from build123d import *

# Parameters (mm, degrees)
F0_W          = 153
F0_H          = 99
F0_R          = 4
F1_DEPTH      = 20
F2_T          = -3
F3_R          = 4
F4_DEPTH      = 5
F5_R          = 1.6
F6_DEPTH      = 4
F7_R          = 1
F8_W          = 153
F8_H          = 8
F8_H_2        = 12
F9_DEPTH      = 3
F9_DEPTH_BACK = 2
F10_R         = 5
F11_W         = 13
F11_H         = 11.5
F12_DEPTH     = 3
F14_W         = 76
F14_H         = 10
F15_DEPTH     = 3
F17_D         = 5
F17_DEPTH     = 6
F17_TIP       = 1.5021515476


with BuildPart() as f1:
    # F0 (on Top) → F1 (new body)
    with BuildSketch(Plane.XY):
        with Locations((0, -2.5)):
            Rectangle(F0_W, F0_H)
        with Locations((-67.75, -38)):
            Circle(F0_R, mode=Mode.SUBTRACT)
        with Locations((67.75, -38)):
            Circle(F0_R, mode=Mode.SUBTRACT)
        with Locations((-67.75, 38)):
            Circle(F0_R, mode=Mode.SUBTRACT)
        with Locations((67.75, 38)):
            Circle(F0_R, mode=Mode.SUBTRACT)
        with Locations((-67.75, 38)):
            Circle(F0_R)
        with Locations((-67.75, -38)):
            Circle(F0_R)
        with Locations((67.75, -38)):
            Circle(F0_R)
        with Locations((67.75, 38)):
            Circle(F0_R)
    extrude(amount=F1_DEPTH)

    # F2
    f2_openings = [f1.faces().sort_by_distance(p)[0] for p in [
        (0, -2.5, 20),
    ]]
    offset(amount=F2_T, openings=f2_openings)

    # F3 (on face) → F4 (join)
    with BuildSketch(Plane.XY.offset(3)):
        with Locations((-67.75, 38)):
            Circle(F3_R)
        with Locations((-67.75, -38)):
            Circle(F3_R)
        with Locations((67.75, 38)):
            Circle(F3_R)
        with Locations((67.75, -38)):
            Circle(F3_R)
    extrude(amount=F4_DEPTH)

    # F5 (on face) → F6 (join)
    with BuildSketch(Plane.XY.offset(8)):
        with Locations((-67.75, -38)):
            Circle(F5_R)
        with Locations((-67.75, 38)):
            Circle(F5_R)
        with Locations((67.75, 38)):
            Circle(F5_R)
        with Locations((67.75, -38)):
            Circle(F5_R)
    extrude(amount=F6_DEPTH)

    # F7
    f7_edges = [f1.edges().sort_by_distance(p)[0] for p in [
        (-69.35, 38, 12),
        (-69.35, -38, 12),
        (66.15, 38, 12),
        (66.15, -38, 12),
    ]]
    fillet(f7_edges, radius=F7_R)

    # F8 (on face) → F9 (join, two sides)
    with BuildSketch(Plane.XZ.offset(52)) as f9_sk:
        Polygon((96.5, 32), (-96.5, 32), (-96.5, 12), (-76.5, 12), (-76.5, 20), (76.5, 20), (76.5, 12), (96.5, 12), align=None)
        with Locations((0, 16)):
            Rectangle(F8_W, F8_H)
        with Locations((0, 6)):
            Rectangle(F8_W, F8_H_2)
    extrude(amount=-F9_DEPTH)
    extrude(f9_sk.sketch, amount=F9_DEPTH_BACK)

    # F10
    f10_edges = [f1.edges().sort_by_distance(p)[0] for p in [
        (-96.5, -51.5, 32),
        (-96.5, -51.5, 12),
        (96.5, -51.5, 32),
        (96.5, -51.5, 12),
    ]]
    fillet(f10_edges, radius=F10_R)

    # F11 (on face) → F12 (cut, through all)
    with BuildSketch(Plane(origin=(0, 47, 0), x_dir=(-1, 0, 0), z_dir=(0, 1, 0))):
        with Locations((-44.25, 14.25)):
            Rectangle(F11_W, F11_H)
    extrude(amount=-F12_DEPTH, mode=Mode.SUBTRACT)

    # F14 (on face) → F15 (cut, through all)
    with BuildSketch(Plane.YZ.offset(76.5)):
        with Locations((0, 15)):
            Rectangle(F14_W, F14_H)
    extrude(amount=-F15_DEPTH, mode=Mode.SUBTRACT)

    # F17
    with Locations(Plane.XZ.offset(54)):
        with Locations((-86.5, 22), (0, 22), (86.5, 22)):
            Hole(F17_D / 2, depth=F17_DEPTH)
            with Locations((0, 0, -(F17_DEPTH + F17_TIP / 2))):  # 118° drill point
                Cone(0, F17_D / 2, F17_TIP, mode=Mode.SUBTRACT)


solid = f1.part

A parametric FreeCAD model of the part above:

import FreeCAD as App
import Part
import Sketcher


def edges_at(feature, points):
    """Names of the edges that pass closest to the given points."""
    edges = feature.Shape.Edges
    near = lambda p: min(range(len(edges)), key=lambda i: edges[i].distToShape(Part.Vertex(*p))[0])
    return sorted({f"Edge{near(p) + 1}" for p in points})


def faces_at(feature, points):
    """Names of the faces that lie closest to the given points."""
    faces = feature.Shape.Faces
    near = lambda p: min(range(len(faces)), key=lambda i: faces[i].distToShape(Part.Vertex(*p))[0])
    return sorted({f"Face{near(p) + 1}" for p in points})

doc = App.newDocument("Part")
body = doc.addObject("PartDesign::Body", "Body")

# Sketch on XY plane
sketch1 = body.newObject("Sketcher::SketchObject", "Sketch")
sketch1.AttachmentSupport = (doc.getObject("XY_Plane"), [""])
sketch1.MapMode = "FlatFace"
sketch1.addGeometry(Part.LineSegment(App.Vector(-76, 47, 0), App.Vector(-76, -52, 0)), False)
sketch1.addGeometry(Part.LineSegment(App.Vector(-76, -52, 0), App.Vector(76, -52, 0)), False)
sketch1.addGeometry(Part.LineSegment(App.Vector(76, -52, 0), App.Vector(76, 47, 0)), False)
sketch1.addGeometry(Part.LineSegment(App.Vector(76, 47, 0), App.Vector(-76, 47, 0)), False)
sketch1.addConstraint(Sketcher.Constraint("Coincident", 0, 2, 1, 1))
sketch1.addConstraint(Sketcher.Constraint("Coincident", 1, 2, 2, 1))
sketch1.addConstraint(Sketcher.Constraint("Coincident", 2, 2, 3, 1))
sketch1.addConstraint(Sketcher.Constraint("Coincident", 3, 2, 0, 1))
sketch1.addConstraint(Sketcher.Constraint("Vertical", 0))
sketch1.addConstraint(Sketcher.Constraint("Horizontal", 1))
sketch1.addConstraint(Sketcher.Constraint("Vertical", 2))
sketch1.addConstraint(Sketcher.Constraint("Horizontal", 3))
sketch1.addConstraint(Sketcher.Constraint("DistanceX", 1, 1, 1, 2, 153.0))
sketch1.addConstraint(Sketcher.Constraint("DistanceY", 0, 2, 0, 1, 99.0))
sketch1.addConstraint(Sketcher.Constraint("DistanceY", 0, 2, -1, 1, 52.0))
sketch1.addConstraint(Sketcher.Constraint("DistanceX", 0, 2, -1, 1, 76.5))
pad1 = body.newObject("PartDesign::Pad", "Pad")
pad1.Profile = sketch1
pad1.Length = 20
doc.recompute()

thickness = body.newObject("PartDesign::Thickness", "Thickness")
thickness.Base = (pad1, faces_at(pad1, [(0, -2.5, 20)]))
thickness.Value = 3
thickness.Reversed = True
thickness.Join = "Arc"

# Sketch on XY plane
sketch2 = body.newObject("Sketcher::SketchObject", "Sketch001")
sketch2.AttachmentSupport = (doc.getObject("XY_Plane"), [""])
sketch2.MapMode = "FlatFace"
sketch2.AttachmentOffset = App.Placement(App.Vector(0, 0, 3), App.Rotation())
sketch2.addGeometry(Part.Circle(App.Vector(-67.8, 38, 0), App.Vector(0, 0, 1), 4), False)
sketch2.addGeometry(Part.Circle(App.Vector(-67.8, -38, 0), App.Vector(0, 0, 1), 4), False)
sketch2.addGeometry(Part.Circle(App.Vector(67.8, 38, 0), App.Vector(0, 0, 1), 4), False)
sketch2.addGeometry(Part.Circle(App.Vector(67.8, -38, 0), App.Vector(0, 0, 1), 4), False)
sketch2.addConstraint(Sketcher.Constraint("Equal", 0, 1))
sketch2.addConstraint(Sketcher.Constraint("Equal", 1, 2))
sketch2.addConstraint(Sketcher.Constraint("Equal", 2, 3))
sketch2.addConstraint(Sketcher.Constraint("Symmetric", 1, 3, 2, 3, -1, 1))
sketch2.addConstraint(Sketcher.Constraint("Symmetric", 0, 3, 3, 3, -1, 1))
sketch2.addConstraint(Sketcher.Constraint("Symmetric", 0, 3, 2, 3, -2))
sketch2.addConstraint(Sketcher.Constraint("Diameter", 0, 8.0))
sketch2.addConstraint(Sketcher.Constraint("DistanceY", -1, 1, 0, 3, 38.0))
sketch2.addConstraint(Sketcher.Constraint("DistanceX", 0, 3, 2, 3, 135.5))
pad2 = body.newObject("PartDesign::Pad", "Pad001")
pad2.Profile = sketch2
pad2.Length = 5

# Sketch on XY plane
sketch3 = body.newObject("Sketcher::SketchObject", "Sketch002")
sketch3.AttachmentSupport = (doc.getObject("XY_Plane"), [""])
sketch3.MapMode = "FlatFace"
sketch3.AttachmentOffset = App.Placement(App.Vector(0, 0, 8), App.Rotation())
sketch3.addGeometry(Part.Circle(App.Vector(-67.8, -38, 0), App.Vector(0, 0, 1), 1.6), False)
sketch3.addGeometry(Part.Circle(App.Vector(-67.8, 38, 0), App.Vector(0, 0, 1), 1.6), False)
sketch3.addGeometry(Part.Circle(App.Vector(67.8, 38, 0), App.Vector(0, 0, 1), 1.6), False)
sketch3.addGeometry(Part.Circle(App.Vector(67.8, -38, 0), App.Vector(0, 0, 1), 1.6), False)
sketch3.addConstraint(Sketcher.Constraint("Equal", 0, 1))
sketch3.addConstraint(Sketcher.Constraint("Equal", 1, 2))
sketch3.addConstraint(Sketcher.Constraint("Equal", 2, 3))
sketch3.addConstraint(Sketcher.Constraint("Symmetric", 0, 3, 2, 3, -1, 1))
sketch3.addConstraint(Sketcher.Constraint("Symmetric", 1, 3, 3, 3, -1, 1))
sketch3.addConstraint(Sketcher.Constraint("Symmetric", 1, 3, 2, 3, -2))
sketch3.addConstraint(Sketcher.Constraint("Diameter", 0, 3.2))
sketch3.addConstraint(Sketcher.Constraint("DistanceY", 0, 3, -1, 1, 38.0))
sketch3.addConstraint(Sketcher.Constraint("DistanceX", 1, 3, 2, 3, 135.5))
pad3 = body.newObject("PartDesign::Pad", "Pad002")
pad3.Profile = sketch3
pad3.Length = 4
doc.recompute()

fillet = body.newObject("PartDesign::Fillet", "Fillet")
fillet.Base = (pad3, edges_at(pad3, [
    (-69.35, 38, 12),
    (-69.35, -38, 12),
    (66.15, 38, 12),
    (66.15, -38, 12),
]))
fillet.Radius = 1

# Sketch on XZ plane
sketch4 = body.newObject("Sketcher::SketchObject", "Sketch003")
sketch4.AttachmentSupport = (doc.getObject("XZ_Plane"), [""])
sketch4.MapMode = "FlatFace"
sketch4.AttachmentOffset = App.Placement(App.Vector(0, 0, 52), App.Rotation())
sketch4.addGeometry(Part.LineSegment(App.Vector(96, 32, 0), App.Vector(-96, 32, 0)), False)
sketch4.addGeometry(Part.LineSegment(App.Vector(-96, 32, 0), App.Vector(-96, 12, 0)), False)
sketch4.addGeometry(Part.LineSegment(App.Vector(-96, 12, 0), App.Vector(-76, 12, 0)), False)
sketch4.addGeometry(Part.LineSegment(App.Vector(-76, 12, 0), App.Vector(-76, 0, 0)), False)
sketch4.addGeometry(Part.LineSegment(App.Vector(-76, 0, 0), App.Vector(76, 0, 0)), False)
sketch4.addGeometry(Part.LineSegment(App.Vector(76, 0, 0), App.Vector(76, 12, 0)), False)
sketch4.addGeometry(Part.LineSegment(App.Vector(76, 12, 0), App.Vector(96, 12, 0)), False)
sketch4.addGeometry(Part.LineSegment(App.Vector(96, 12, 0), App.Vector(96, 32, 0)), False)
sketch4.addConstraint(Sketcher.Constraint("Coincident", 0, 2, 1, 1))
sketch4.addConstraint(Sketcher.Constraint("Coincident", 1, 2, 2, 1))
sketch4.addConstraint(Sketcher.Constraint("Coincident", 2, 2, 3, 1))
sketch4.addConstraint(Sketcher.Constraint("Coincident", 3, 2, 4, 1))
sketch4.addConstraint(Sketcher.Constraint("Coincident", 4, 2, 5, 1))
sketch4.addConstraint(Sketcher.Constraint("Coincident", 5, 2, 6, 1))
sketch4.addConstraint(Sketcher.Constraint("Coincident", 6, 2, 7, 1))
sketch4.addConstraint(Sketcher.Constraint("Coincident", 7, 2, 0, 1))
sketch4.addConstraint(Sketcher.Constraint("Horizontal", 0))
sketch4.addConstraint(Sketcher.Constraint("Vertical", 1))
sketch4.addConstraint(Sketcher.Constraint("Horizontal", 2))
sketch4.addConstraint(Sketcher.Constraint("Vertical", 3))
sketch4.addConstraint(Sketcher.Constraint("Horizontal", 4))
sketch4.addConstraint(Sketcher.Constraint("Vertical", 5))
sketch4.addConstraint(Sketcher.Constraint("Horizontal", 6))
sketch4.addConstraint(Sketcher.Constraint("Vertical", 7))
sketch4.addConstraint(Sketcher.Constraint("Symmetric", 3, 2, 4, 2, -1, 1))
sketch4.addConstraint(Sketcher.Constraint("Symmetric", 1, 2, 6, 2, -2))
sketch4.addConstraint(Sketcher.Constraint("Equal", 6, 1))
sketch4.addConstraint(Sketcher.Constraint("DistanceX", 0, 2, 0, 1, 193.0))
sketch4.addConstraint(Sketcher.Constraint("DistanceX", 2, 1, 2, 2, 20.0))
sketch4.addConstraint(Sketcher.Constraint("DistanceY", 3, 2, 3, 1, 12.0))
pad4 = body.newObject("PartDesign::Pad", "Pad003")
pad4.Profile = sketch4
pad4.Type = "TwoLengths"
pad4.Length = 3
pad4.Length2 = 2
pad4.Reversed = True
doc.recompute()

fillet2 = body.newObject("PartDesign::Fillet", "Fillet001")
fillet2.Base = (pad4, edges_at(pad4, [
    (-96.5, -51.5, 32),
    (-96.5, -51.5, 12),
    (96.5, -51.5, 32),
    (96.5, -51.5, 12),
]))
fillet2.Radius = 5

# Sketch on XZ plane
sketch5 = body.newObject("Sketcher::SketchObject", "Sketch004")
sketch5.AttachmentSupport = (doc.getObject("XZ_Plane"), [""])
sketch5.MapMode = "FlatFace"
sketch5.AttachmentOffset = App.Placement(App.Vector(0, 0, -47), App.Rotation())
sketch5.addGeometry(Part.LineSegment(App.Vector(51, 20, 0), App.Vector(51, 8, 0)), False)
sketch5.addGeometry(Part.LineSegment(App.Vector(51, 8, 0), App.Vector(38, 8, 0)), False)
sketch5.addGeometry(Part.LineSegment(App.Vector(38, 8, 0), App.Vector(38, 20, 0)), False)
sketch5.addGeometry(Part.LineSegment(App.Vector(38, 20, 0), App.Vector(51, 20, 0)), False)
sketch5.addConstraint(Sketcher.Constraint("Coincident", 0, 2, 1, 1))
sketch5.addConstraint(Sketcher.Constraint("Coincident", 1, 2, 2, 1))
sketch5.addConstraint(Sketcher.Constraint("Coincident", 2, 2, 3, 1))
sketch5.addConstraint(Sketcher.Constraint("Coincident", 3, 2, 0, 1))
sketch5.addConstraint(Sketcher.Constraint("Vertical", 0))
sketch5.addConstraint(Sketcher.Constraint("Horizontal", 1))
sketch5.addConstraint(Sketcher.Constraint("Vertical", 2))
sketch5.addConstraint(Sketcher.Constraint("Horizontal", 3))
sketch5.addConstraint(Sketcher.Constraint("DistanceX", 1, 2, 1, 1, 13.0))
sketch5.addConstraint(Sketcher.Constraint("DistanceY", 0, 2, 0, 1, 11.5))
sketch5.addConstraint(Sketcher.Constraint("DistanceY", -1, 1, 2, 2, 20.0))
sketch5.addConstraint(Sketcher.Constraint("DistanceX", -1, 1, 0, 2, 50.75))
pocket1 = body.newObject("PartDesign::Pocket", "Pocket")
pocket1.Profile = sketch5
pocket1.Length = 3
pocket1.Reversed = True

# Sketch on YZ plane
sketch6 = body.newObject("Sketcher::SketchObject", "Sketch005")
sketch6.AttachmentSupport = (doc.getObject("YZ_Plane"), [""])
sketch6.MapMode = "FlatFace"
sketch6.AttachmentOffset = App.Placement(App.Vector(0, 0, 76.5), App.Rotation())
sketch6.addGeometry(Part.LineSegment(App.Vector(-38, 20, 0), App.Vector(-38, 10, 0)), False)
sketch6.addGeometry(Part.LineSegment(App.Vector(-38, 10, 0), App.Vector(38, 10, 0)), False)
sketch6.addGeometry(Part.LineSegment(App.Vector(38, 10, 0), App.Vector(38, 20, 0)), False)
sketch6.addGeometry(Part.LineSegment(App.Vector(38, 20, 0), App.Vector(-38, 20, 0)), False)
sketch6.addConstraint(Sketcher.Constraint("Coincident", 0, 2, 1, 1))
sketch6.addConstraint(Sketcher.Constraint("Coincident", 1, 2, 2, 1))
sketch6.addConstraint(Sketcher.Constraint("Coincident", 2, 2, 3, 1))
sketch6.addConstraint(Sketcher.Constraint("Coincident", 3, 2, 0, 1))
sketch6.addConstraint(Sketcher.Constraint("Vertical", 0))
sketch6.addConstraint(Sketcher.Constraint("Horizontal", 1))
sketch6.addConstraint(Sketcher.Constraint("Vertical", 2))
sketch6.addConstraint(Sketcher.Constraint("Horizontal", 3))
sketch6.addConstraint(Sketcher.Constraint("DistanceX", 1, 1, 1, 2, 76.0))
sketch6.addConstraint(Sketcher.Constraint("DistanceY", 0, 2, 0, 1, 10.0))
sketch6.addConstraint(Sketcher.Constraint("DistanceX", 0, 2, -1, 1, 38.0))
sketch6.addConstraint(Sketcher.Constraint("DistanceY", -1, 1, 0, 2, 10.0))
pocket2 = body.newObject("PartDesign::Pocket", "Pocket001")
pocket2.Profile = sketch6
pocket2.Length = 3

# Sketch on XZ plane
sketch7 = body.newObject("Sketcher::SketchObject", "Sketch006")
sketch7.AttachmentSupport = (doc.getObject("XZ_Plane"), [""])
sketch7.MapMode = "FlatFace"
sketch7.AttachmentOffset = App.Placement(App.Vector(0, 0, 54), App.Rotation())
sketch7.addGeometry(Part.Circle(App.Vector(-86.5, 22, 0), App.Vector(0, 0, 1), 2.5), False)
sketch7.addGeometry(Part.Circle(App.Vector(0, 22, 0), App.Vector(0, 0, 1), 2.5), False)
sketch7.addGeometry(Part.Circle(App.Vector(86.5, 22, 0), App.Vector(0, 0, 1), 2.5), False)
sketch7.addConstraint(Sketcher.Constraint("Equal", 0, 1))
sketch7.addConstraint(Sketcher.Constraint("Equal", 1, 2))
sketch7.addConstraint(Sketcher.Constraint("Symmetric", 0, 3, 2, 3, -2))
sketch7.addConstraint(Sketcher.Constraint("PointOnObject", 1, 3, -2))
sketch7.addConstraint(Sketcher.Constraint("Horizontal", 0, 3, 1, 3))
sketch7.addConstraint(Sketcher.Constraint("Diameter", 0, 5.0))
sketch7.addConstraint(Sketcher.Constraint("DistanceY", -1, 1, 0, 3, 22.0))
sketch7.addConstraint(Sketcher.Constraint("DistanceX", 0, 3, 2, 3, 173.0))
doc.recompute()
hole = body.newObject("PartDesign::Hole", "Hole")
hole.Profile = sketch7
hole.ThreadType = "None"
hole.Diameter = 5
hole.DepthType = "Dimension"
hole.Depth = 6
hole.DrillPoint = "Angled"
hole.DrillPointAngle = 118

doc.recompute()
